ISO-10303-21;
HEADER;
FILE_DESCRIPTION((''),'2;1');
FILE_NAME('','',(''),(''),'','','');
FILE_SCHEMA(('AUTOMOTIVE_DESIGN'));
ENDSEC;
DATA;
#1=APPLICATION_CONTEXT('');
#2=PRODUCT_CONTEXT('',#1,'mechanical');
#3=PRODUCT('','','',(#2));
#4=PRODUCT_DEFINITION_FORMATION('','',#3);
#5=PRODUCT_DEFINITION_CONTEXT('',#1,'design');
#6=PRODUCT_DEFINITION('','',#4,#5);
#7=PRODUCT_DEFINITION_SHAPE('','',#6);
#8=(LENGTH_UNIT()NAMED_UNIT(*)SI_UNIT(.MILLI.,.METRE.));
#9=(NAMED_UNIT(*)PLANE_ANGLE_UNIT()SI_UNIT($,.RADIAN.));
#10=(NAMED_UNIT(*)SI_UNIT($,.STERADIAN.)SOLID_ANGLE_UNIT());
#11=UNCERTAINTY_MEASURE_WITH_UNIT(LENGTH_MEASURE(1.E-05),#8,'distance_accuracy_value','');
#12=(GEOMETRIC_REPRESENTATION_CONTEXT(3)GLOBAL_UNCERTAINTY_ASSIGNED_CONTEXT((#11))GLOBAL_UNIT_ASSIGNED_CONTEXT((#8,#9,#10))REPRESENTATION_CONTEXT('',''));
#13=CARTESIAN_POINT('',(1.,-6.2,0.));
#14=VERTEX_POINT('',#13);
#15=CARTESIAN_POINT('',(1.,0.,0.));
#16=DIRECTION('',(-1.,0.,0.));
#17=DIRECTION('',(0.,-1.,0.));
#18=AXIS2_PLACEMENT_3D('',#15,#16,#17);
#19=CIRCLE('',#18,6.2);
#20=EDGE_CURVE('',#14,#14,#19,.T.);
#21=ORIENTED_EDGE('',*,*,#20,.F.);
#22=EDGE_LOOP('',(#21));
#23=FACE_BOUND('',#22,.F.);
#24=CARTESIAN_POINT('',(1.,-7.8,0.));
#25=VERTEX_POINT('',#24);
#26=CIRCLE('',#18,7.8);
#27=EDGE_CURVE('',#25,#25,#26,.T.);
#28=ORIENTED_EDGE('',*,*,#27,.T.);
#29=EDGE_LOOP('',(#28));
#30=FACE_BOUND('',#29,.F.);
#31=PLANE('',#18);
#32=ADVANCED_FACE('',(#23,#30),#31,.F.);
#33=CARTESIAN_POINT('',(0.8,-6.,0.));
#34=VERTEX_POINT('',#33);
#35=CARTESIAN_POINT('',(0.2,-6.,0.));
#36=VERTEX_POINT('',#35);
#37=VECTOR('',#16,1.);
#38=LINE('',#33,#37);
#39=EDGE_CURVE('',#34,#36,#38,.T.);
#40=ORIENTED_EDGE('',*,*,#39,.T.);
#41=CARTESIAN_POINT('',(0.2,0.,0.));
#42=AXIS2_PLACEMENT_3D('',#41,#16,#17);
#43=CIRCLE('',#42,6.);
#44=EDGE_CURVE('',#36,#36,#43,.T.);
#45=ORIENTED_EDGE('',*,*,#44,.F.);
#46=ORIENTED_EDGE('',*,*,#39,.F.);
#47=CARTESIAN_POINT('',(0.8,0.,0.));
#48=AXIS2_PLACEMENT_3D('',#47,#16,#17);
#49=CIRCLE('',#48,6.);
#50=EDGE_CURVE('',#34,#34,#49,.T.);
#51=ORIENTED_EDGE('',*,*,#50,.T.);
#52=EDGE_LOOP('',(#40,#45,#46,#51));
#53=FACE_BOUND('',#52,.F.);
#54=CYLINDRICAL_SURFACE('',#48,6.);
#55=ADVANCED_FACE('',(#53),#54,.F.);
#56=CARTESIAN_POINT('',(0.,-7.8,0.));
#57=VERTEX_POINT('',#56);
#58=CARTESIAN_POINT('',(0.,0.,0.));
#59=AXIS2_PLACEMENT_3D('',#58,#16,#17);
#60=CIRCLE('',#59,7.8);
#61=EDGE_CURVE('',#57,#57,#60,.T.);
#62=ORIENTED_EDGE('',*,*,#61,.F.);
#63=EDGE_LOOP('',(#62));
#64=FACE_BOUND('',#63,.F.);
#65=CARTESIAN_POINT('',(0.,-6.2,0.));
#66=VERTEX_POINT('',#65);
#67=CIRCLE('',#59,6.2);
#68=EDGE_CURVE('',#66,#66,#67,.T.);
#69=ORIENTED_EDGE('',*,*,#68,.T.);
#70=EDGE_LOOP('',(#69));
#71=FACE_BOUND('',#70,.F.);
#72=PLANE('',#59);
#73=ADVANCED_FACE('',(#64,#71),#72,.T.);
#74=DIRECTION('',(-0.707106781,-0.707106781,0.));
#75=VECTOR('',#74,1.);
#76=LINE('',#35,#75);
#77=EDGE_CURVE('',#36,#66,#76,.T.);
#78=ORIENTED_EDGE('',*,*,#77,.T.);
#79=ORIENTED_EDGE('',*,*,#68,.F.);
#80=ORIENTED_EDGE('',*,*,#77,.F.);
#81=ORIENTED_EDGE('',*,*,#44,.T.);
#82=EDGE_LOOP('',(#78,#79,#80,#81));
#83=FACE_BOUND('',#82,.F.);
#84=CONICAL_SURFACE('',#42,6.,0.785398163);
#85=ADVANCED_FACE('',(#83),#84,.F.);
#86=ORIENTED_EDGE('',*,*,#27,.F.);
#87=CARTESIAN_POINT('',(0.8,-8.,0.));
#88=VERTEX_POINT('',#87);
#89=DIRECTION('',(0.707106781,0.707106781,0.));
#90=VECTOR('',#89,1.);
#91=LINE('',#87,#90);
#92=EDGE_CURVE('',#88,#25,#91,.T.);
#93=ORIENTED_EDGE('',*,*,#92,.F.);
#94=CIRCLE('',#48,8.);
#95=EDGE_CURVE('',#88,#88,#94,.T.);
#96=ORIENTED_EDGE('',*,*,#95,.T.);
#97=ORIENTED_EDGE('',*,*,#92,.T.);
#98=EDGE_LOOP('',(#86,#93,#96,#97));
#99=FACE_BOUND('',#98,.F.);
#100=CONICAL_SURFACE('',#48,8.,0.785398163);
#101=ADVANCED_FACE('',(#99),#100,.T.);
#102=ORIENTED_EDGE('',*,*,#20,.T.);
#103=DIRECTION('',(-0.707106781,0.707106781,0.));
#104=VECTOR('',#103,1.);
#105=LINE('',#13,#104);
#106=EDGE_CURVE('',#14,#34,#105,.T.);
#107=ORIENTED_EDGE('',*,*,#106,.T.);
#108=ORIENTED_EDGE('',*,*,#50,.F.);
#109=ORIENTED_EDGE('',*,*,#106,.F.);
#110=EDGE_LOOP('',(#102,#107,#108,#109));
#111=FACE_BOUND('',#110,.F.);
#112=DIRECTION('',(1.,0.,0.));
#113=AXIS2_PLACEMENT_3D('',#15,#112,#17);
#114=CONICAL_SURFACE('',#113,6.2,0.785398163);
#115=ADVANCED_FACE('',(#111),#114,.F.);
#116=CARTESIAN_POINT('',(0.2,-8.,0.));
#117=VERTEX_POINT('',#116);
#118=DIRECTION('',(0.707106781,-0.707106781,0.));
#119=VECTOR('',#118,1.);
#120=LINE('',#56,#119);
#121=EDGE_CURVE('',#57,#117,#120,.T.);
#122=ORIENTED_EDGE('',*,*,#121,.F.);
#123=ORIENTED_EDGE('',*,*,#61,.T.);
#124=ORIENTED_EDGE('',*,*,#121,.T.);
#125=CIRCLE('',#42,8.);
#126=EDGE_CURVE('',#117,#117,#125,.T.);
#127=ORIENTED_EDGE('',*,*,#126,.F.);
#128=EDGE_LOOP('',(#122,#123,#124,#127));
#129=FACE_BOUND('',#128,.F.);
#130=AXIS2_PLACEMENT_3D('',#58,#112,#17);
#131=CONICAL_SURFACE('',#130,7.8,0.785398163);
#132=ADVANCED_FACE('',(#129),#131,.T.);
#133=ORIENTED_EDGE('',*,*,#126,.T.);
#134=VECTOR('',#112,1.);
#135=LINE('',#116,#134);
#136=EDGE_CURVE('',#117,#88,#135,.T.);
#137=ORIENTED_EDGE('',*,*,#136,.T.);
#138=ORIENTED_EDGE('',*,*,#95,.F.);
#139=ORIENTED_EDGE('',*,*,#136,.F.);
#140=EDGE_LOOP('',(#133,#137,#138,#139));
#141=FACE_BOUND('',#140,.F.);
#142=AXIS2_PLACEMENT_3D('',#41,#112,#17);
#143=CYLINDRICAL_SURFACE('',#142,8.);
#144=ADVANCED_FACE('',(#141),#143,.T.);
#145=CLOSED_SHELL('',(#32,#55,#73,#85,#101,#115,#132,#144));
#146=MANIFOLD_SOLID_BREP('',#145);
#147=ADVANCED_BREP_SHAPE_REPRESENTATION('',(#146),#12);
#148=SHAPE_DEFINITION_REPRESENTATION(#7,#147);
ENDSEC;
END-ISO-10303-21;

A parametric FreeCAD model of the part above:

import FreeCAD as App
import Part
import Sketcher

V = App.Vector

doc = App.newDocument("Part")
params = doc.addObject("Spreadsheet::Sheet", "Params")
for row, (alias, value) in enumerate([
    ("sketch1_width", "0.6 mm"),
    ("sketch1_height", "1.6 mm"),
    ("revolution_angle", "360 deg"),
], start=1):
    params.set(f"A{row}", alias)
    params.set(f"B{row}", "=" + value)
    params.setAlias(f"B{row}", alias)

body = doc.addObject("PartDesign::Body", "Body")

# Sketch on XY plane
sketch1 = doc.addObject("Sketcher::SketchObject", "Sketch")
body.addObject(sketch1)
sketch1.AttachmentSupport = (doc.XY_Plane, [""])
sketch1.MapMode = "FlatFace"
sketch1.addGeometry([
    Part.LineSegment(V(0.2, -6, 0), V(0, -6.2, 0)),  # 0
    Part.LineSegment(V(0, -6.2, 0), V(0, -7.8, 0)),  # 1
    Part.LineSegment(V(0, -7.8, 0), V(0.2, -8, 0)),  # 2
    Part.LineSegment(V(0.2, -8, 0), V(0.8, -8, 0)),  # 3
    Part.LineSegment(V(0.8, -8, 0), V(1, -7.8, 0)),  # 4
    Part.LineSegment(V(1, -7.8, 0), V(1, -6.2, 0)),  # 5
    Part.LineSegment(V(1, -6.2, 0), V(0.8, -6, 0)),  # 6
    Part.LineSegment(V(0.8, -6, 0), V(0.2, -6, 0)),  # 7
], False)
sketch1.addConstraint([
    Sketcher.Constraint("Coincident", 0, 2, 1, 1),
    Sketcher.Constraint("Coincident", 1, 2, 2, 1),
    Sketcher.Constraint("Coincident", 2, 2, 3, 1),
    Sketcher.Constraint("Coincident", 3, 2, 4, 1),
    Sketcher.Constraint("Coincident", 4, 2, 5, 1),
    Sketcher.Constraint("Coincident", 5, 2, 6, 1),
    Sketcher.Constraint("Coincident", 6, 2, 7, 1),
    Sketcher.Constraint("Coincident", 7, 2, 0, 1),
    Sketcher.Constraint("Vertical", 1),
    Sketcher.Constraint("Horizontal", 3),
    Sketcher.Constraint("Vertical", 5),
    Sketcher.Constraint("Horizontal", 7),
    Sketcher.Constraint("PointOnObject", 0, 2, -2),
    Sketcher.Constraint("Perpendicular", 0, 2),
    Sketcher.Constraint("Perpendicular", 2, 4),
    Sketcher.Constraint("Perpendicular", 4, 6),
    Sketcher.Constraint("Horizontal", 1, 2, 4, 2),
    Sketcher.Constraint("Horizontal", 0, 2, 5, 2),
    Sketcher.Constraint("Vertical", 3, 2, 6, 2),
    Sketcher.Constraint("Vertical", 2, 2, 7, 2),
    Sketcher.Constraint("DistanceX", 3, 1, 3, 2, 0.6),
    Sketcher.Constraint("DistanceY", 1, 2, 1, 1, 1.6),
    Sketcher.Constraint("DistanceY", 2, 2, -1, 1, 8.0),
    Sketcher.Constraint("DistanceX", -1, 1, 4, 2, 1.0),
])
sketch1.setExpression("Constraints[20]", "Params.sketch1_width")
sketch1.setExpression("Constraints[21]", "Params.sketch1_height")
revolution = doc.addObject("PartDesign::Revolution", "Revolution")
body.addObject(revolution)
revolution.Profile = sketch1
revolution.ReferenceAxis = (sketch1, ["H_Axis"])
revolution.setExpression("Angle", "Params.revolution_angle")

doc.recompute()
